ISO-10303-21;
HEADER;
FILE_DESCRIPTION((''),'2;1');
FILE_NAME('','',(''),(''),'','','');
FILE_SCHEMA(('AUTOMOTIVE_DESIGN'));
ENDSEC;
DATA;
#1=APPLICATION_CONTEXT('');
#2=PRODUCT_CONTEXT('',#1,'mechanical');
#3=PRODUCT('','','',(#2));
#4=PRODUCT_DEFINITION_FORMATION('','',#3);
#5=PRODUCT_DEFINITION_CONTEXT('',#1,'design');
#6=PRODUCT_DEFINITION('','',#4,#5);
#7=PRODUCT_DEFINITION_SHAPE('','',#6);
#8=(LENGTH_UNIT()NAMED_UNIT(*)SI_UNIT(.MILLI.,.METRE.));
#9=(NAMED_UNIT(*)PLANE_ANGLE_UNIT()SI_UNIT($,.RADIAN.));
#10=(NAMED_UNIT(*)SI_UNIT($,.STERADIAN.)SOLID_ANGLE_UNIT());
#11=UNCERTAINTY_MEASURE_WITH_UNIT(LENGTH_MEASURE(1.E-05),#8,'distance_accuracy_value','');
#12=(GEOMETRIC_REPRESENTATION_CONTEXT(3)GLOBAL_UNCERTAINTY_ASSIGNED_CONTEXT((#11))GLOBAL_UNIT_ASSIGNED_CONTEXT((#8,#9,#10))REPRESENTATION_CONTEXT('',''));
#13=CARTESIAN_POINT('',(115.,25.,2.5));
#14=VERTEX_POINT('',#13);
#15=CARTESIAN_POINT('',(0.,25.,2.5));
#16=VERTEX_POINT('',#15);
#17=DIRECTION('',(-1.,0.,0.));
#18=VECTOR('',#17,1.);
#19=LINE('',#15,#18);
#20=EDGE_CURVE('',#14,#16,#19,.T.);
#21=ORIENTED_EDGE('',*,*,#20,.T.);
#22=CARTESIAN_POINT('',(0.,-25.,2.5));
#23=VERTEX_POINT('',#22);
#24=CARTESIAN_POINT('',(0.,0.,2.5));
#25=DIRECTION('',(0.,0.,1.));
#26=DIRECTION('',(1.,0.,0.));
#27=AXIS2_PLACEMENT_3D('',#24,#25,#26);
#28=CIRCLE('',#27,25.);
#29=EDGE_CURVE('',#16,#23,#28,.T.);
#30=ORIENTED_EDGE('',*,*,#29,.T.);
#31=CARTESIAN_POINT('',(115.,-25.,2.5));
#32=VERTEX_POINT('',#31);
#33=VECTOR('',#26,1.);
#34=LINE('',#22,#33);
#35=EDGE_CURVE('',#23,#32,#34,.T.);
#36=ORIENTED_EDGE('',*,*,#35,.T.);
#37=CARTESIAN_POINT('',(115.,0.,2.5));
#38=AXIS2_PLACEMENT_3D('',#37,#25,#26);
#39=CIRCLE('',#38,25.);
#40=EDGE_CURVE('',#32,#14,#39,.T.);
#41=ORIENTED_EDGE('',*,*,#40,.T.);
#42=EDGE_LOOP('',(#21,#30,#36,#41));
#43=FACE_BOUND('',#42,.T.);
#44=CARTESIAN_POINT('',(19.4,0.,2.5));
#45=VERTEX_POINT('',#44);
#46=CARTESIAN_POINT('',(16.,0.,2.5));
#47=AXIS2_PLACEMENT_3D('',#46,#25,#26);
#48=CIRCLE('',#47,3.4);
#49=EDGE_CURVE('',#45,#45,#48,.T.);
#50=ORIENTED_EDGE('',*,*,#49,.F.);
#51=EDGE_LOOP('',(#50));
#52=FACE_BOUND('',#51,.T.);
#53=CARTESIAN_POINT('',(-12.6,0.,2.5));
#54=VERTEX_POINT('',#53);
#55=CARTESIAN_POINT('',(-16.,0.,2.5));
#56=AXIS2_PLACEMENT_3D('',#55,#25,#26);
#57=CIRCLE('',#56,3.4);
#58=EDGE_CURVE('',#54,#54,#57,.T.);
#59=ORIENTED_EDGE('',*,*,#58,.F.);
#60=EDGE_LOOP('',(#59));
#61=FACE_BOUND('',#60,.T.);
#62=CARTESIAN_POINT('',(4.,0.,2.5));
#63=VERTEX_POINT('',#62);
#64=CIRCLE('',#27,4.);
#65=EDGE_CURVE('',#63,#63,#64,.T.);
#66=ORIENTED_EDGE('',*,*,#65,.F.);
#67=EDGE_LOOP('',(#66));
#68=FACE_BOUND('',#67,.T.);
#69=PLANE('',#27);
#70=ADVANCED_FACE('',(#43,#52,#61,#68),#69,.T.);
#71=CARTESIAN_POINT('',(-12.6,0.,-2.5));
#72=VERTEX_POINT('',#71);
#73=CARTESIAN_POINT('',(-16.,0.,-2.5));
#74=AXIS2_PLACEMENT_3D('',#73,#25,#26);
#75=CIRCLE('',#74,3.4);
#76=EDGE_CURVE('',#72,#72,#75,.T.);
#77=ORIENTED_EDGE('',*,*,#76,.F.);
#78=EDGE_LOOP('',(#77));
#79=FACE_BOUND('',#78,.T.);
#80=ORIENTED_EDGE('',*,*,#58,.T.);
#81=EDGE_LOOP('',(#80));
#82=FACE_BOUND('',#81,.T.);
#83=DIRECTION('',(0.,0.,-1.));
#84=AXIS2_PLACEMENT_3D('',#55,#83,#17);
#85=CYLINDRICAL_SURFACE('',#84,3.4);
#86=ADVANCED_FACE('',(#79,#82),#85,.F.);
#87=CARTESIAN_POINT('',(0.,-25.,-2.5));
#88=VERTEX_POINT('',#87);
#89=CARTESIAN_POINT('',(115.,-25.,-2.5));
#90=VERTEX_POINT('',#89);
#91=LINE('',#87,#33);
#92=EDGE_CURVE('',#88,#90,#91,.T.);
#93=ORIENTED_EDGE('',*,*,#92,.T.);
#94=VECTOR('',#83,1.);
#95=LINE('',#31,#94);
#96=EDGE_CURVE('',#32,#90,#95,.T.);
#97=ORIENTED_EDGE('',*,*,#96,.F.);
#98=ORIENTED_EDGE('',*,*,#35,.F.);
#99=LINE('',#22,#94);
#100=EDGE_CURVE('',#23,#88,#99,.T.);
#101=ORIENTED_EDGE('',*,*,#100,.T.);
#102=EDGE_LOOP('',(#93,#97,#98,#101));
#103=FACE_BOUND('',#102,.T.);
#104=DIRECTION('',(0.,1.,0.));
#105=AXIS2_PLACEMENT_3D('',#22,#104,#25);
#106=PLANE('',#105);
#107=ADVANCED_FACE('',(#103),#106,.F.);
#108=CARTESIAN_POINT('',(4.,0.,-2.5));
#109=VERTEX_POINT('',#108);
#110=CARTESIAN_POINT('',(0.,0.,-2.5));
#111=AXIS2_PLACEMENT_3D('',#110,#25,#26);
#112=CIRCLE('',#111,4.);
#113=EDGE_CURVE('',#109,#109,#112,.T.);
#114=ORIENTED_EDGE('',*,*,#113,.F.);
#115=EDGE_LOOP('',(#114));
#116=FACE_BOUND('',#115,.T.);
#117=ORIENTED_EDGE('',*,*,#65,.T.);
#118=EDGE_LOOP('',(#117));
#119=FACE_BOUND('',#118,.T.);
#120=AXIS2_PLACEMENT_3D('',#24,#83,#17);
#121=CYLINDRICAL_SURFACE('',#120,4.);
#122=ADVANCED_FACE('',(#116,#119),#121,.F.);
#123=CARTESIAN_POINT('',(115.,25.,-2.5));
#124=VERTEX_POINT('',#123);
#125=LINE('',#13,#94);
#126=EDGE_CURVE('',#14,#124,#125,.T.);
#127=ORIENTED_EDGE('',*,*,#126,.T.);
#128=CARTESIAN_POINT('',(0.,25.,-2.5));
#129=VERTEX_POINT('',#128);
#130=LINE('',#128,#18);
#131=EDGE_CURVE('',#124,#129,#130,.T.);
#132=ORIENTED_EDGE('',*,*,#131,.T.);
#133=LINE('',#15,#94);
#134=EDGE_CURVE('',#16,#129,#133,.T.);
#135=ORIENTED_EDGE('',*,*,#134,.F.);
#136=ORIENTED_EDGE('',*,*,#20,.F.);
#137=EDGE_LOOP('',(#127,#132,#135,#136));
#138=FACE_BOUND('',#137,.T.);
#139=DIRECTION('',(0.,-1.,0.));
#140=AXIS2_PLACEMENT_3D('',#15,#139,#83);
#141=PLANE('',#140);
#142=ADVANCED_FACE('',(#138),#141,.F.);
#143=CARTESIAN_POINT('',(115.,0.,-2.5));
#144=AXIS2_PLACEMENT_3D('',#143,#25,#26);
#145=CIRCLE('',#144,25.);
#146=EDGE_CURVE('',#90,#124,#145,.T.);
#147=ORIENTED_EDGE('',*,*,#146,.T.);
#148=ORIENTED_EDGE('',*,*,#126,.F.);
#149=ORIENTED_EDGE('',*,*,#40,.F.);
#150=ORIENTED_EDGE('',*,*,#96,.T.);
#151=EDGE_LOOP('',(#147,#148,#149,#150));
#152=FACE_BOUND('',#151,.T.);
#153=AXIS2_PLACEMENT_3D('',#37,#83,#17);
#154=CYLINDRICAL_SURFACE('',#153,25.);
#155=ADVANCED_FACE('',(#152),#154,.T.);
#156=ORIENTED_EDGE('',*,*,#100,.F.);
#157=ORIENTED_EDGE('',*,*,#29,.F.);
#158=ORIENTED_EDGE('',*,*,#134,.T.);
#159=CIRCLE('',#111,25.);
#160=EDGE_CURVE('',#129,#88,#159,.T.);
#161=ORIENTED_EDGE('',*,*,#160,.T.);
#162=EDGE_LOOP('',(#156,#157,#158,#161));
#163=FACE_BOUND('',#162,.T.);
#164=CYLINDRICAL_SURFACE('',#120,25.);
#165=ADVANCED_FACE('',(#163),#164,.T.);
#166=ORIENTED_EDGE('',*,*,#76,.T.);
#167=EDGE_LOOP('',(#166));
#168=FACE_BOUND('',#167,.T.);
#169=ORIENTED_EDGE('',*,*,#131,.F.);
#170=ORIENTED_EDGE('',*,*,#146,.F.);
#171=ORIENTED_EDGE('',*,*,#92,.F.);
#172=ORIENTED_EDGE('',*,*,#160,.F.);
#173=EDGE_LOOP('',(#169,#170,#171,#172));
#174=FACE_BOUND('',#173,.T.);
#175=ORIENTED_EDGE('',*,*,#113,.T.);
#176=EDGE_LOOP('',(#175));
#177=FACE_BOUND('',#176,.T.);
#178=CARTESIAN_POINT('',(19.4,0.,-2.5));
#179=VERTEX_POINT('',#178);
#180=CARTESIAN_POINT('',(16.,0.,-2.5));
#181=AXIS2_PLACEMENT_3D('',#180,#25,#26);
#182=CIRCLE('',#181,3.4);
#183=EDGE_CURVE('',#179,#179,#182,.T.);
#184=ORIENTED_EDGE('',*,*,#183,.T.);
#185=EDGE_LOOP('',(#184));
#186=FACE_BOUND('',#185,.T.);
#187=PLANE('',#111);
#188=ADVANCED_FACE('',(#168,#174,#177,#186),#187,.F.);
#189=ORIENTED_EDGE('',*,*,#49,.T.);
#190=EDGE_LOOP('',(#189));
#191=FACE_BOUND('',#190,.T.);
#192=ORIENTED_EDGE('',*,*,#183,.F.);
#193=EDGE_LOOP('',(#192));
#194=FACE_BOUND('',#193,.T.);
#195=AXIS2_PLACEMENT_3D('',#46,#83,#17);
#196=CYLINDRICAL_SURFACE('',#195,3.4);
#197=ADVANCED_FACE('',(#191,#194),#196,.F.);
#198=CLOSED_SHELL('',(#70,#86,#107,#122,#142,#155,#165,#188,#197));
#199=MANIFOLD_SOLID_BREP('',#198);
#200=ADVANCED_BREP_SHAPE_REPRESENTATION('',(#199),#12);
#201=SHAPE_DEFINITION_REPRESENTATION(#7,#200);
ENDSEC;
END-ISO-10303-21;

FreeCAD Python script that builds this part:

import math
import FreeCAD as App
import Part
import Sketcher
from FreeCAD import Vector

doc = App.newDocument("Part")
params = doc.addObject("Spreadsheet::Sheet", "Params")
for row, (alias, value) in enumerate([
    ("sketch1_diameter", "8 mm"),
    ("sketch1_radius", "25 mm"),
    ("sketch1_diameter2", "6.8 mm"),
    ("sketch1_width", "115 mm"),
    ("pad1_length", "5 mm"),
], start=1):
    params.set(f"A{row}", alias)
    params.set(f"B{row}", "=" + value)
    params.setAlias(f"B{row}", alias)

body = doc.addObject("PartDesign::Body", "Body")

sketch1 = doc.addObject("Sketcher::SketchObject", "Sketch")
body.addObject(sketch1)
sketch1.AttachmentSupport = (doc.XY_Plane, [""])
sketch1.MapMode = "FlatFace"
sketch1.addGeometry(Part.LineSegment(Vector(115, 25, 0), Vector(0, 25, 0)), False)
sketch1.addGeometry(Part.ArcOfCircle(Part.Circle(Vector(0, 0, 0), Vector(0, 0, 1), 25), math.radians(90), math.radians(270)), False)
sketch1.addGeometry(Part.LineSegment(Vector(0, -25, 0), Vector(115, -25, 0)), False)
sketch1.addGeometry(Part.ArcOfCircle(Part.Circle(Vector(115, 0, 0), Vector(0, 0, 1), 25), math.radians(-90), math.radians(90)), False)
sketch1.addGeometry(Part.Circle(Vector(16, 0, 0), Vector(0, 0, 1), 3.4), False)
sketch1.addGeometry(Part.Circle(Vector(0, 0, 0), Vector(0, 0, 1), 4), False)
sketch1.addGeometry(Part.Circle(Vector(-16, 0, 0), Vector(0, 0, 1), 3.4), False)
sketch1.addConstraint(Sketcher.Constraint("Tangent", 0, 2, 1, 1))
sketch1.addConstraint(Sketcher.Constraint("Tangent", 1, 2, 2, 1))
sketch1.addConstraint(Sketcher.Constraint("Tangent", 2, 2, 3, 1))
sketch1.addConstraint(Sketcher.Constraint("Tangent", 3, 2, 0, 1))
sketch1.addConstraint(Sketcher.Constraint("Horizontal", 0))
sketch1.addConstraint(Sketcher.Constraint("Horizontal", 2))
sketch1.addConstraint(Sketcher.Constraint("Coincident", 1, 3, -1, 1))
sketch1.addConstraint(Sketcher.Constraint("Coincident", 5, 3, -1, 1))
sketch1.addConstraint(Sketcher.Constraint("Equal", 4, 6))
sketch1.addConstraint(Sketcher.Constraint("Symmetric", 4, 3, 6, 3, -1, 1))
sketch1.addConstraint(Sketcher.Constraint("PointOnObject", 4, 3, -1))
sketch1.addConstraint(Sketcher.Constraint("Diameter", 5, 8.0))
sketch1.addConstraint(Sketcher.Constraint("Radius", 1, 25.0))
sketch1.addConstraint(Sketcher.Constraint("Diameter", 4, 6.8))
sketch1.addConstraint(Sketcher.Constraint("DistanceX", 0, 2, 0, 1, 115.0))
sketch1.addConstraint(Sketcher.Constraint("DistanceX", -1, 1, 4, 3, 16.0))
sketch1.setExpression("Constraints[11]", "Params.sketch1_diameter")
sketch1.setExpression("Constraints[12]", "Params.sketch1_radius")
sketch1.setExpression("Constraints[13]", "Params.sketch1_diameter2")
sketch1.setExpression("Constraints[14]", "Params.sketch1_width")
pad1 = doc.addObject("PartDesign::Pad", "Pad")
body.addObject(pad1)
pad1.Profile = sketch1
pad1.setExpression("Length", "Params.pad1_length")
pad1.Midplane = True

doc.recompute()
